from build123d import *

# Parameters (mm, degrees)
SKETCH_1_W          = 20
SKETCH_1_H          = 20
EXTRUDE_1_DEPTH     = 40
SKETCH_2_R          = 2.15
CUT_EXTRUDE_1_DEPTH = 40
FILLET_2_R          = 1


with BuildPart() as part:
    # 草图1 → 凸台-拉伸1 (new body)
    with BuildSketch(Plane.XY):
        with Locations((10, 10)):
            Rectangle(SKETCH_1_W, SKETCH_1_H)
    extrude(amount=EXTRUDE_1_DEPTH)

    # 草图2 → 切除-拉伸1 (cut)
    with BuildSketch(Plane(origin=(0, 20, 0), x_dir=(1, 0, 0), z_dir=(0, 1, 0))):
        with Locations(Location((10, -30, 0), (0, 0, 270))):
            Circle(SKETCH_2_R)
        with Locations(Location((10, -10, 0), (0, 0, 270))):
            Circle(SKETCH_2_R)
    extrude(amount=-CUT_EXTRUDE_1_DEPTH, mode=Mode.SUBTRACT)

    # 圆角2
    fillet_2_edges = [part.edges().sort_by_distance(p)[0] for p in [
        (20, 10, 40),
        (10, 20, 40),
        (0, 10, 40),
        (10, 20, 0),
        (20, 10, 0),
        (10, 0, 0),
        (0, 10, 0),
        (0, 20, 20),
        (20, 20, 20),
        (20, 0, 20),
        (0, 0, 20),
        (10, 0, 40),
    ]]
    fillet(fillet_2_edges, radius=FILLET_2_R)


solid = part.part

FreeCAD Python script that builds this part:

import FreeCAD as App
import Part
import Sketcher
from FreeCAD import Vector


def edges_at(feature, points):
    """Names of the edges that pass closest to the given points."""
    edges = feature.Shape.Edges
    near = lambda p: min(range(len(edges)), key=lambda i: edges[i].distToShape(Part.Vertex(*p))[0])
    return sorted({f"Edge{near(p) + 1}" for p in points})


def add_polygon(sketch, points):
    """Adds a closed chain of lines whose ends are joined by coincident constraints."""
    first, n = sketch.GeometryCount, len(points)
    for a, b in zip(points, points[1:] + points[:1]):
        sketch.addGeometry(Part.LineSegment(App.Vector(*a, 0), App.Vector(*b, 0)), False)
    for i in range(n):
        sketch.addConstraint(Sketcher.Constraint("Coincident", first + i, 2, first + (i + 1) % n, 1))

doc = App.newDocument("Part")
body = doc.addObject("PartDesign::Body", "Body")

sketch1 = body.newObject("Sketcher::SketchObject", "Sketch")
sketch1.AttachmentSupport = (doc.getObject("XY_Plane"), [""])
sketch1.MapMode = "FlatFace"
add_polygon(sketch1, [(0, 20), (0, 0), (20, 0), (20, 20)])
sketch1.addConstraint([
    Sketcher.Constraint("Vertical", 0),
    Sketcher.Constraint("Horizontal", 1),
    Sketcher.Constraint("Vertical", 2),
    Sketcher.Constraint("Horizontal", 3),
    Sketcher.Constraint("Coincident", 0, 2, -1, 1),
    Sketcher.Constraint("Equal", 3, 0),
    Sketcher.Constraint("DistanceX", 1, 1, 1, 2, 20.0),
])
pad1 = body.newObject("PartDesign::Pad", "Pad")
pad1.Profile = sketch1
pad1.Length = 40

sketch2 = body.newObject("Sketcher::SketchObject", "Sketch001")
sketch2.AttachmentSupport = (doc.getObject("XZ_Plane"), [""])
sketch2.MapMode = "FlatFace"
sketch2.AttachmentOffset = App.Placement(Vector(0, 0, -20), App.Rotation())
sketch2.addGeometry([
    Part.Circle(Vector(10, 30, 0), Vector(0, 0, 1), 2.1),
    Part.Circle(Vector(10, 10, 0), Vector(0, 0, 1), 2.1),
], False)
sketch2.addConstraint([
    Sketcher.Constraint("Equal", 0, 1),
    Sketcher.Constraint("Vertical", 0, 3, 1, 3),
    Sketcher.Constraint("Diameter", 0, 4.3),
    Sketcher.Constraint("DistanceX", -1, 1, 0, 3, 10.0),
    Sketcher.Constraint("DistanceY", -1, 1, 0, 3, 30.0),
    Sketcher.Constraint("DistanceY", -1, 1, 1, 3, 10.0),
])
pocket1 = body.newObject("PartDesign::Pocket", "Pocket")
pocket1.Profile = sketch2
pocket1.Length = 40
pocket1.Reversed = True
doc.recompute()

fillet = body.newObject("PartDesign::Fillet", "Fillet")
fillet.Base = (pocket1, edges_at(pocket1, [
    (20, 10, 40),
    (10, 20, 40),
    (0, 10, 40),
    (10, 20, 0),
    (20, 10, 0),
    (10, 0, 0),
    (0, 10, 0),
    (0, 20, 20),
    (20, 20, 20),
    (20, 0, 20),
    (0, 0, 20),
    (10, 0, 40),
]))
fillet.Radius = 1

doc.recompute()
